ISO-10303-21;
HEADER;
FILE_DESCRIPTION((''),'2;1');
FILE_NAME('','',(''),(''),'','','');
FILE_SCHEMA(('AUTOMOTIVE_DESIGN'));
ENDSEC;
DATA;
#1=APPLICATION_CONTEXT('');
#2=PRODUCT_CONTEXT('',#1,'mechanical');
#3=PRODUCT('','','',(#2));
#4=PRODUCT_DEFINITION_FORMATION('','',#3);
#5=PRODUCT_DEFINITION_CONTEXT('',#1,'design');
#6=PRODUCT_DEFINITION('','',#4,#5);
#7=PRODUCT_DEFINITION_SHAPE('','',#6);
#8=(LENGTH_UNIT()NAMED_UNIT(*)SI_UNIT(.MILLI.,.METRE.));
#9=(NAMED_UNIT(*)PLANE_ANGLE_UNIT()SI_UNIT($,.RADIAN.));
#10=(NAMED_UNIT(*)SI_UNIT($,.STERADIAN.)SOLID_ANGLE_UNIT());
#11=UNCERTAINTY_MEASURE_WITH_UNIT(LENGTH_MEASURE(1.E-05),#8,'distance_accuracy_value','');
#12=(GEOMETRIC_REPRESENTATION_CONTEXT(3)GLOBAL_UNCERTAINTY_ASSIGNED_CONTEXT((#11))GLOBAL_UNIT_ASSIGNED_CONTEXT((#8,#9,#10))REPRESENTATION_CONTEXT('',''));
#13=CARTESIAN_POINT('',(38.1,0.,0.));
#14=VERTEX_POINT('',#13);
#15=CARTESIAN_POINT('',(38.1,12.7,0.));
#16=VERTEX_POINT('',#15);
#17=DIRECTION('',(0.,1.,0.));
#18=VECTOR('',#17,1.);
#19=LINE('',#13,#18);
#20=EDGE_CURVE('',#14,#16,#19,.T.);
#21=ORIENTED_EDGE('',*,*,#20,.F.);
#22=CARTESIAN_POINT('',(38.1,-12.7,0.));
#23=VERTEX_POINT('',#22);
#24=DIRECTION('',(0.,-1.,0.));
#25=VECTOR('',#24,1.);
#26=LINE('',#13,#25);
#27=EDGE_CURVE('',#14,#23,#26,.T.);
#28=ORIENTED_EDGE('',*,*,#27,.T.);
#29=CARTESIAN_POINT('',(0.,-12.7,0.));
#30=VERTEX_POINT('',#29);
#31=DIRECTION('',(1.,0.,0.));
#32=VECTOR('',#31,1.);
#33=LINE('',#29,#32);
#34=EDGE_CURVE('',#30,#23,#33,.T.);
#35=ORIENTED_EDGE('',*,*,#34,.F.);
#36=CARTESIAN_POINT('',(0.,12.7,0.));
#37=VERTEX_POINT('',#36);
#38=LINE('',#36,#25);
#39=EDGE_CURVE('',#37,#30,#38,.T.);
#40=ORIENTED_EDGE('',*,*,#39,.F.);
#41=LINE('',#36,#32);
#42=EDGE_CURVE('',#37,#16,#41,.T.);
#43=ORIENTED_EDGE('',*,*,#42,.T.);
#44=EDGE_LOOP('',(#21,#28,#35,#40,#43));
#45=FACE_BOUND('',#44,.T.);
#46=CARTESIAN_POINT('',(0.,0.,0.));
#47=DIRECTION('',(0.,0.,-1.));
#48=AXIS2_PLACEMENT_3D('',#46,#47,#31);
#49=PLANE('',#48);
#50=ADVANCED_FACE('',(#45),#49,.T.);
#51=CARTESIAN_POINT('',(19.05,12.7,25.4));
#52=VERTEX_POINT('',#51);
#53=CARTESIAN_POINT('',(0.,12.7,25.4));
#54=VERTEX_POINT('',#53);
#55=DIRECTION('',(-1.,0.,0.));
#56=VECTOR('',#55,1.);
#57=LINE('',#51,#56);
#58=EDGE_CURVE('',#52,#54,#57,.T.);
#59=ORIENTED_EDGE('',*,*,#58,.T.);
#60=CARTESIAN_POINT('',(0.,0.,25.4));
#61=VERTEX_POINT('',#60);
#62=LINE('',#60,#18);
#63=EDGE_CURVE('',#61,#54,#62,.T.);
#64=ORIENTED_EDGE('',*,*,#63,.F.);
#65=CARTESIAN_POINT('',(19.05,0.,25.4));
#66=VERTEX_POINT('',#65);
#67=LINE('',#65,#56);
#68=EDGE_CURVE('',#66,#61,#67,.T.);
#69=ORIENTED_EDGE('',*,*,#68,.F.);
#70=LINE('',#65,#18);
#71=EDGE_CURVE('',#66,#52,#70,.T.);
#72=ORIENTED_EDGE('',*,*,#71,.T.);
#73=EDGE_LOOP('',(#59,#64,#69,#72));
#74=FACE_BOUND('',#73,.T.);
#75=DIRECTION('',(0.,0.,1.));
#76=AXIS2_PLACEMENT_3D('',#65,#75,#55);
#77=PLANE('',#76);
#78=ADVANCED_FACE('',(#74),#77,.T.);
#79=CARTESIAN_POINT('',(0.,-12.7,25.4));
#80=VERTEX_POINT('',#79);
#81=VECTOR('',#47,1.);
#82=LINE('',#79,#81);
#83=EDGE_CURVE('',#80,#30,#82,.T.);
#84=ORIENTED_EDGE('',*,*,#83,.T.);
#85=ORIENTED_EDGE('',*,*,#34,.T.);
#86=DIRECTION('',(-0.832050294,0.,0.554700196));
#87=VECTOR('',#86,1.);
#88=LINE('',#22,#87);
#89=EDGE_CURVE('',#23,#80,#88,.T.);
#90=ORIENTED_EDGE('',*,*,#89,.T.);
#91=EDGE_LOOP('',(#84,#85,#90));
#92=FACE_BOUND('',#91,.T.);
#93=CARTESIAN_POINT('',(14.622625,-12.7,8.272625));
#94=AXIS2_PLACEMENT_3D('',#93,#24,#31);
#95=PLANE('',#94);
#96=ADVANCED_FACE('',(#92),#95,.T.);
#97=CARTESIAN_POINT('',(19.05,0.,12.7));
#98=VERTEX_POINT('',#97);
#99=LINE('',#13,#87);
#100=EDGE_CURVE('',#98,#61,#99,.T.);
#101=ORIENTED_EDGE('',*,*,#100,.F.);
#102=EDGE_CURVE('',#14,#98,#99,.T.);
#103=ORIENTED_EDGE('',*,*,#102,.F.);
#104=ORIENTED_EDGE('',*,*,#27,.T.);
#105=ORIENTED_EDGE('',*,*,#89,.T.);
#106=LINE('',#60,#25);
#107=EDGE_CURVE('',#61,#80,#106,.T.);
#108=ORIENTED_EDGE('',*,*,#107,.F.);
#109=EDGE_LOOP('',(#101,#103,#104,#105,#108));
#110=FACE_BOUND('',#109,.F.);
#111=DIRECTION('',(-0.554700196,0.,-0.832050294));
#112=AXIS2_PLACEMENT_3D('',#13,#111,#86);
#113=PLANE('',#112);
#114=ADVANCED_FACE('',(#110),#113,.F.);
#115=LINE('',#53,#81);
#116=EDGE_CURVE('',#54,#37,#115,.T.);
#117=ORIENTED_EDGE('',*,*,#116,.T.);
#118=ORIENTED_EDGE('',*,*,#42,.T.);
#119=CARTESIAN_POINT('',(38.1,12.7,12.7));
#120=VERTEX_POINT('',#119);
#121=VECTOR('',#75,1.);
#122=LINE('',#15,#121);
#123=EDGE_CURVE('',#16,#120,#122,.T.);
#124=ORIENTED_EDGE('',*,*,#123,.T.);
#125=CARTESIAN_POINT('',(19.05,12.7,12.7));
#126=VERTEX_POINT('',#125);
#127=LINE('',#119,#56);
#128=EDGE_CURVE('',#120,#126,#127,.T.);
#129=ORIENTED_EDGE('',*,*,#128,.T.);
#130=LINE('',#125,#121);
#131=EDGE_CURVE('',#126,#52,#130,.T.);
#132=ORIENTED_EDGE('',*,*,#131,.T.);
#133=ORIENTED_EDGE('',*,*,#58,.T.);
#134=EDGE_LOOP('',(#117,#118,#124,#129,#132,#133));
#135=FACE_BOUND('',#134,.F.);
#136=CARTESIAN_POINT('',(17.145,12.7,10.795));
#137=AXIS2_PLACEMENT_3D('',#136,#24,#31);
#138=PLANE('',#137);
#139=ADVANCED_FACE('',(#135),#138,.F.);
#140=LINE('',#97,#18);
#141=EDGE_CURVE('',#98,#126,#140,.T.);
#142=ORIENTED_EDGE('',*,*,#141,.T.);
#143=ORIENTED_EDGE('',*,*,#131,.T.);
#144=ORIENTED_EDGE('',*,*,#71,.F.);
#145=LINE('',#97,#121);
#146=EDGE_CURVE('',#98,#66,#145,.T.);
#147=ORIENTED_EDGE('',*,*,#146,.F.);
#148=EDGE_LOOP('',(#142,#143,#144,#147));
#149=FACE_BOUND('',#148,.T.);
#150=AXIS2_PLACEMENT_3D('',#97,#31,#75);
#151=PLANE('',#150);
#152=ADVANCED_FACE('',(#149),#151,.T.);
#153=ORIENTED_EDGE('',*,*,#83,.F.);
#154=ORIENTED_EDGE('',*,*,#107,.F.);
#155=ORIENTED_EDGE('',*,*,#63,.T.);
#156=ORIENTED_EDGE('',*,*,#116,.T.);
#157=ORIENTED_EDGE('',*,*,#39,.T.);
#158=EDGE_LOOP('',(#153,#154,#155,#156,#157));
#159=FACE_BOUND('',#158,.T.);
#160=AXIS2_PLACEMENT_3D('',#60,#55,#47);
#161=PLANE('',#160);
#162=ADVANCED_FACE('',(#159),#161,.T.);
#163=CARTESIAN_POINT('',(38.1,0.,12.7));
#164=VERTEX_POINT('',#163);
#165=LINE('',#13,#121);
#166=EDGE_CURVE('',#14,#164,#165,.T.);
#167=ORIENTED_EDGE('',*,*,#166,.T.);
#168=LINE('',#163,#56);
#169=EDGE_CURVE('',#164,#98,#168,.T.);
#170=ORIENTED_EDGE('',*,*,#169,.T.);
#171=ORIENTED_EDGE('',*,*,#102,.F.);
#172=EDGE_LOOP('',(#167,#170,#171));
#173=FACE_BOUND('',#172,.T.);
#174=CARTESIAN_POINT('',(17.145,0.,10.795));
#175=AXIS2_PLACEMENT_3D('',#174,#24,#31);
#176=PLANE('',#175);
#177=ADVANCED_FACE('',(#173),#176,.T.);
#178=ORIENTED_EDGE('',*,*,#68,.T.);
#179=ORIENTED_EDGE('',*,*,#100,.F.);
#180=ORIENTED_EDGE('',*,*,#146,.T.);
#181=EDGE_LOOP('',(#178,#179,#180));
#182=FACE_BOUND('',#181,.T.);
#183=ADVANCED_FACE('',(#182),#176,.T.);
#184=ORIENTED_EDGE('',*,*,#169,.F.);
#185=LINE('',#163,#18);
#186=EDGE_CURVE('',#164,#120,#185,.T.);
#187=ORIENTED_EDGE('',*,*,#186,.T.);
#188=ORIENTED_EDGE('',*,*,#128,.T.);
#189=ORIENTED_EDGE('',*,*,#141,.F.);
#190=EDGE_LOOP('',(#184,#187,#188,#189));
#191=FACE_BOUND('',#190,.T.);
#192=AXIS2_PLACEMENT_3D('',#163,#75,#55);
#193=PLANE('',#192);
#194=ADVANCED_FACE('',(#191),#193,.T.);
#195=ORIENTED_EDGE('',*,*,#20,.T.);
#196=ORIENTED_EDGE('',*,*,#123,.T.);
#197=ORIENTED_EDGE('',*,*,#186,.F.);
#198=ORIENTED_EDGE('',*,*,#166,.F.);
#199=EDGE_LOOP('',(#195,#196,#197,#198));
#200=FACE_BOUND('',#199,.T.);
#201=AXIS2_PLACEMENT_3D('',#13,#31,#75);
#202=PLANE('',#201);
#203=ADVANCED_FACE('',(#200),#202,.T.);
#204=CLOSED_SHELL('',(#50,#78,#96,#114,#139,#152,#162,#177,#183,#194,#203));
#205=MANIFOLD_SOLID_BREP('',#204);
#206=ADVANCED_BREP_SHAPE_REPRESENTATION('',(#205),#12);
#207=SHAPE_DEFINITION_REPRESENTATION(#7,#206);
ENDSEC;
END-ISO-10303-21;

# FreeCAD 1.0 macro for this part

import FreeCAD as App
import Part
import Sketcher
Q = App.Units.Quantity

doc = App.newDocument("Part")
params = doc.addObject("Spreadsheet::Sheet", "Params")
for row, (alias, value) in enumerate([
    ("sketch1_height", "1 in"),
    ("sketch1_width", "1.5 in"),
    ("pad1_length", "0.5 in"),
    ("sketch2_height", "1 in"),
    ("sketch2_width", "1.5 in"),
    ("pad2_length", "0.5 in"),
], start=1):
    params.set(f"A{row}", alias)
    params.set(f"B{row}", "=" + value)
    params.setAlias(f"B{row}", alias)

body = doc.addObject("PartDesign::Body", "Body")

# Sketch on XZ plane
sketch1 = body.newObject("Sketcher::SketchObject", "Sketch")
sketch1.AttachmentSupport = (doc.getObject("XZ_Plane"), [""])
sketch1.MapMode = "FlatFace"
sketch1.addGeometry([
    Part.LineSegment(App.Vector(0, 25.4, 0), App.Vector(0, 0, 0)),
    Part.LineSegment(App.Vector(0, 0, 0), App.Vector(38.1, 0, 0)),
    Part.LineSegment(App.Vector(38.1, 0, 0), App.Vector(0, 25.4, 0)),
], False)
sketch1.addConstraint([
    Sketcher.Constraint("Coincident", 0, 2, 1, 1),
    Sketcher.Constraint("Coincident", 1, 2, 2, 1),
    Sketcher.Constraint("Coincident", 2, 2, 0, 1),
    Sketcher.Constraint("Vertical", 0),
    Sketcher.Constraint("Horizontal", 1),
    Sketcher.Constraint("Coincident", 0, 2, -1, 1),
    Sketcher.Constraint("DistanceY", 0, 2, 0, 1, Q("1 in")),
    Sketcher.Constraint("DistanceX", 1, 1, 1, 2, Q("1.5 in")),
])
sketch1.setExpression("Constraints[6]", "Params.sketch1_height")
sketch1.setExpression("Constraints[7]", "Params.sketch1_width")
pad1 = body.newObject("PartDesign::Pad", "Pad")
pad1.Profile = sketch1
pad1.setExpression("Length", "Params.pad1_length")

# Sketch on XZ plane
sketch2 = body.newObject("Sketcher::SketchObject", "Sketch001")
sketch2.AttachmentSupport = (doc.getObject("XZ_Plane"), [""])
sketch2.MapMode = "FlatFace"
sketch2.addGeometry([
    Part.LineSegment(App.Vector(19.05, 25.4, 0), App.Vector(0, 25.4, 0)),  # 0
    Part.LineSegment(App.Vector(0, 25.4, 0), App.Vector(0, 0, 0)),  # 1
    Part.LineSegment(App.Vector(0, 0, 0), App.Vector(38.1, 0, 0)),  # 2
    Part.LineSegment(App.Vector(38.1, 0, 0), App.Vector(38.1, 12.7, 0)),  # 3
    Part.LineSegment(App.Vector(38.1, 12.7, 0), App.Vector(19.05, 12.7, 0)),  # 4
    Part.LineSegment(App.Vector(19.05, 12.7, 0), App.Vector(19.05, 25.4, 0)),  # 5
], False)
sketch2.addConstraint([
    Sketcher.Constraint("Coincident", 0, 2, 1, 1),
    Sketcher.Constraint("Coincident", 1, 2, 2, 1),
    Sketcher.Constraint("Coincident", 2, 2, 3, 1),
    Sketcher.Constraint("Coincident", 3, 2, 4, 1),
    Sketcher.Constraint("Coincident", 4, 2, 5, 1),
    Sketcher.Constraint("Coincident", 5, 2, 0, 1),
    Sketcher.Constraint("Horizontal", 0),
    Sketcher.Constraint("Vertical", 1),
    Sketcher.Constraint("Horizontal", 2),
    Sketcher.Constraint("Vertical", 3),
    Sketcher.Constraint("Horizontal", 4),
    Sketcher.Constraint("Vertical", 5),
    Sketcher.Constraint("Coincident", 1, 2, -1, 1),
    Sketcher.Constraint("Equal", 0, 4),
    Sketcher.Constraint("Equal", 3, 5),
    Sketcher.Constraint("DistanceY", 1, 2, 1, 1, Q("1 in")),
    Sketcher.Constraint("DistanceX", 2, 1, 2, 2, Q("1.5 in")),
])
sketch2.setExpression("Constraints[15]", "Params.sketch2_height")
sketch2.setExpression("Constraints[16]", "Params.sketch2_width")
pad2 = body.newObject("PartDesign::Pad", "Pad001")
pad2.Profile = sketch2
pad2.setExpression("Length", "Params.pad2_length")
pad2.Reversed = True

doc.recompute()
